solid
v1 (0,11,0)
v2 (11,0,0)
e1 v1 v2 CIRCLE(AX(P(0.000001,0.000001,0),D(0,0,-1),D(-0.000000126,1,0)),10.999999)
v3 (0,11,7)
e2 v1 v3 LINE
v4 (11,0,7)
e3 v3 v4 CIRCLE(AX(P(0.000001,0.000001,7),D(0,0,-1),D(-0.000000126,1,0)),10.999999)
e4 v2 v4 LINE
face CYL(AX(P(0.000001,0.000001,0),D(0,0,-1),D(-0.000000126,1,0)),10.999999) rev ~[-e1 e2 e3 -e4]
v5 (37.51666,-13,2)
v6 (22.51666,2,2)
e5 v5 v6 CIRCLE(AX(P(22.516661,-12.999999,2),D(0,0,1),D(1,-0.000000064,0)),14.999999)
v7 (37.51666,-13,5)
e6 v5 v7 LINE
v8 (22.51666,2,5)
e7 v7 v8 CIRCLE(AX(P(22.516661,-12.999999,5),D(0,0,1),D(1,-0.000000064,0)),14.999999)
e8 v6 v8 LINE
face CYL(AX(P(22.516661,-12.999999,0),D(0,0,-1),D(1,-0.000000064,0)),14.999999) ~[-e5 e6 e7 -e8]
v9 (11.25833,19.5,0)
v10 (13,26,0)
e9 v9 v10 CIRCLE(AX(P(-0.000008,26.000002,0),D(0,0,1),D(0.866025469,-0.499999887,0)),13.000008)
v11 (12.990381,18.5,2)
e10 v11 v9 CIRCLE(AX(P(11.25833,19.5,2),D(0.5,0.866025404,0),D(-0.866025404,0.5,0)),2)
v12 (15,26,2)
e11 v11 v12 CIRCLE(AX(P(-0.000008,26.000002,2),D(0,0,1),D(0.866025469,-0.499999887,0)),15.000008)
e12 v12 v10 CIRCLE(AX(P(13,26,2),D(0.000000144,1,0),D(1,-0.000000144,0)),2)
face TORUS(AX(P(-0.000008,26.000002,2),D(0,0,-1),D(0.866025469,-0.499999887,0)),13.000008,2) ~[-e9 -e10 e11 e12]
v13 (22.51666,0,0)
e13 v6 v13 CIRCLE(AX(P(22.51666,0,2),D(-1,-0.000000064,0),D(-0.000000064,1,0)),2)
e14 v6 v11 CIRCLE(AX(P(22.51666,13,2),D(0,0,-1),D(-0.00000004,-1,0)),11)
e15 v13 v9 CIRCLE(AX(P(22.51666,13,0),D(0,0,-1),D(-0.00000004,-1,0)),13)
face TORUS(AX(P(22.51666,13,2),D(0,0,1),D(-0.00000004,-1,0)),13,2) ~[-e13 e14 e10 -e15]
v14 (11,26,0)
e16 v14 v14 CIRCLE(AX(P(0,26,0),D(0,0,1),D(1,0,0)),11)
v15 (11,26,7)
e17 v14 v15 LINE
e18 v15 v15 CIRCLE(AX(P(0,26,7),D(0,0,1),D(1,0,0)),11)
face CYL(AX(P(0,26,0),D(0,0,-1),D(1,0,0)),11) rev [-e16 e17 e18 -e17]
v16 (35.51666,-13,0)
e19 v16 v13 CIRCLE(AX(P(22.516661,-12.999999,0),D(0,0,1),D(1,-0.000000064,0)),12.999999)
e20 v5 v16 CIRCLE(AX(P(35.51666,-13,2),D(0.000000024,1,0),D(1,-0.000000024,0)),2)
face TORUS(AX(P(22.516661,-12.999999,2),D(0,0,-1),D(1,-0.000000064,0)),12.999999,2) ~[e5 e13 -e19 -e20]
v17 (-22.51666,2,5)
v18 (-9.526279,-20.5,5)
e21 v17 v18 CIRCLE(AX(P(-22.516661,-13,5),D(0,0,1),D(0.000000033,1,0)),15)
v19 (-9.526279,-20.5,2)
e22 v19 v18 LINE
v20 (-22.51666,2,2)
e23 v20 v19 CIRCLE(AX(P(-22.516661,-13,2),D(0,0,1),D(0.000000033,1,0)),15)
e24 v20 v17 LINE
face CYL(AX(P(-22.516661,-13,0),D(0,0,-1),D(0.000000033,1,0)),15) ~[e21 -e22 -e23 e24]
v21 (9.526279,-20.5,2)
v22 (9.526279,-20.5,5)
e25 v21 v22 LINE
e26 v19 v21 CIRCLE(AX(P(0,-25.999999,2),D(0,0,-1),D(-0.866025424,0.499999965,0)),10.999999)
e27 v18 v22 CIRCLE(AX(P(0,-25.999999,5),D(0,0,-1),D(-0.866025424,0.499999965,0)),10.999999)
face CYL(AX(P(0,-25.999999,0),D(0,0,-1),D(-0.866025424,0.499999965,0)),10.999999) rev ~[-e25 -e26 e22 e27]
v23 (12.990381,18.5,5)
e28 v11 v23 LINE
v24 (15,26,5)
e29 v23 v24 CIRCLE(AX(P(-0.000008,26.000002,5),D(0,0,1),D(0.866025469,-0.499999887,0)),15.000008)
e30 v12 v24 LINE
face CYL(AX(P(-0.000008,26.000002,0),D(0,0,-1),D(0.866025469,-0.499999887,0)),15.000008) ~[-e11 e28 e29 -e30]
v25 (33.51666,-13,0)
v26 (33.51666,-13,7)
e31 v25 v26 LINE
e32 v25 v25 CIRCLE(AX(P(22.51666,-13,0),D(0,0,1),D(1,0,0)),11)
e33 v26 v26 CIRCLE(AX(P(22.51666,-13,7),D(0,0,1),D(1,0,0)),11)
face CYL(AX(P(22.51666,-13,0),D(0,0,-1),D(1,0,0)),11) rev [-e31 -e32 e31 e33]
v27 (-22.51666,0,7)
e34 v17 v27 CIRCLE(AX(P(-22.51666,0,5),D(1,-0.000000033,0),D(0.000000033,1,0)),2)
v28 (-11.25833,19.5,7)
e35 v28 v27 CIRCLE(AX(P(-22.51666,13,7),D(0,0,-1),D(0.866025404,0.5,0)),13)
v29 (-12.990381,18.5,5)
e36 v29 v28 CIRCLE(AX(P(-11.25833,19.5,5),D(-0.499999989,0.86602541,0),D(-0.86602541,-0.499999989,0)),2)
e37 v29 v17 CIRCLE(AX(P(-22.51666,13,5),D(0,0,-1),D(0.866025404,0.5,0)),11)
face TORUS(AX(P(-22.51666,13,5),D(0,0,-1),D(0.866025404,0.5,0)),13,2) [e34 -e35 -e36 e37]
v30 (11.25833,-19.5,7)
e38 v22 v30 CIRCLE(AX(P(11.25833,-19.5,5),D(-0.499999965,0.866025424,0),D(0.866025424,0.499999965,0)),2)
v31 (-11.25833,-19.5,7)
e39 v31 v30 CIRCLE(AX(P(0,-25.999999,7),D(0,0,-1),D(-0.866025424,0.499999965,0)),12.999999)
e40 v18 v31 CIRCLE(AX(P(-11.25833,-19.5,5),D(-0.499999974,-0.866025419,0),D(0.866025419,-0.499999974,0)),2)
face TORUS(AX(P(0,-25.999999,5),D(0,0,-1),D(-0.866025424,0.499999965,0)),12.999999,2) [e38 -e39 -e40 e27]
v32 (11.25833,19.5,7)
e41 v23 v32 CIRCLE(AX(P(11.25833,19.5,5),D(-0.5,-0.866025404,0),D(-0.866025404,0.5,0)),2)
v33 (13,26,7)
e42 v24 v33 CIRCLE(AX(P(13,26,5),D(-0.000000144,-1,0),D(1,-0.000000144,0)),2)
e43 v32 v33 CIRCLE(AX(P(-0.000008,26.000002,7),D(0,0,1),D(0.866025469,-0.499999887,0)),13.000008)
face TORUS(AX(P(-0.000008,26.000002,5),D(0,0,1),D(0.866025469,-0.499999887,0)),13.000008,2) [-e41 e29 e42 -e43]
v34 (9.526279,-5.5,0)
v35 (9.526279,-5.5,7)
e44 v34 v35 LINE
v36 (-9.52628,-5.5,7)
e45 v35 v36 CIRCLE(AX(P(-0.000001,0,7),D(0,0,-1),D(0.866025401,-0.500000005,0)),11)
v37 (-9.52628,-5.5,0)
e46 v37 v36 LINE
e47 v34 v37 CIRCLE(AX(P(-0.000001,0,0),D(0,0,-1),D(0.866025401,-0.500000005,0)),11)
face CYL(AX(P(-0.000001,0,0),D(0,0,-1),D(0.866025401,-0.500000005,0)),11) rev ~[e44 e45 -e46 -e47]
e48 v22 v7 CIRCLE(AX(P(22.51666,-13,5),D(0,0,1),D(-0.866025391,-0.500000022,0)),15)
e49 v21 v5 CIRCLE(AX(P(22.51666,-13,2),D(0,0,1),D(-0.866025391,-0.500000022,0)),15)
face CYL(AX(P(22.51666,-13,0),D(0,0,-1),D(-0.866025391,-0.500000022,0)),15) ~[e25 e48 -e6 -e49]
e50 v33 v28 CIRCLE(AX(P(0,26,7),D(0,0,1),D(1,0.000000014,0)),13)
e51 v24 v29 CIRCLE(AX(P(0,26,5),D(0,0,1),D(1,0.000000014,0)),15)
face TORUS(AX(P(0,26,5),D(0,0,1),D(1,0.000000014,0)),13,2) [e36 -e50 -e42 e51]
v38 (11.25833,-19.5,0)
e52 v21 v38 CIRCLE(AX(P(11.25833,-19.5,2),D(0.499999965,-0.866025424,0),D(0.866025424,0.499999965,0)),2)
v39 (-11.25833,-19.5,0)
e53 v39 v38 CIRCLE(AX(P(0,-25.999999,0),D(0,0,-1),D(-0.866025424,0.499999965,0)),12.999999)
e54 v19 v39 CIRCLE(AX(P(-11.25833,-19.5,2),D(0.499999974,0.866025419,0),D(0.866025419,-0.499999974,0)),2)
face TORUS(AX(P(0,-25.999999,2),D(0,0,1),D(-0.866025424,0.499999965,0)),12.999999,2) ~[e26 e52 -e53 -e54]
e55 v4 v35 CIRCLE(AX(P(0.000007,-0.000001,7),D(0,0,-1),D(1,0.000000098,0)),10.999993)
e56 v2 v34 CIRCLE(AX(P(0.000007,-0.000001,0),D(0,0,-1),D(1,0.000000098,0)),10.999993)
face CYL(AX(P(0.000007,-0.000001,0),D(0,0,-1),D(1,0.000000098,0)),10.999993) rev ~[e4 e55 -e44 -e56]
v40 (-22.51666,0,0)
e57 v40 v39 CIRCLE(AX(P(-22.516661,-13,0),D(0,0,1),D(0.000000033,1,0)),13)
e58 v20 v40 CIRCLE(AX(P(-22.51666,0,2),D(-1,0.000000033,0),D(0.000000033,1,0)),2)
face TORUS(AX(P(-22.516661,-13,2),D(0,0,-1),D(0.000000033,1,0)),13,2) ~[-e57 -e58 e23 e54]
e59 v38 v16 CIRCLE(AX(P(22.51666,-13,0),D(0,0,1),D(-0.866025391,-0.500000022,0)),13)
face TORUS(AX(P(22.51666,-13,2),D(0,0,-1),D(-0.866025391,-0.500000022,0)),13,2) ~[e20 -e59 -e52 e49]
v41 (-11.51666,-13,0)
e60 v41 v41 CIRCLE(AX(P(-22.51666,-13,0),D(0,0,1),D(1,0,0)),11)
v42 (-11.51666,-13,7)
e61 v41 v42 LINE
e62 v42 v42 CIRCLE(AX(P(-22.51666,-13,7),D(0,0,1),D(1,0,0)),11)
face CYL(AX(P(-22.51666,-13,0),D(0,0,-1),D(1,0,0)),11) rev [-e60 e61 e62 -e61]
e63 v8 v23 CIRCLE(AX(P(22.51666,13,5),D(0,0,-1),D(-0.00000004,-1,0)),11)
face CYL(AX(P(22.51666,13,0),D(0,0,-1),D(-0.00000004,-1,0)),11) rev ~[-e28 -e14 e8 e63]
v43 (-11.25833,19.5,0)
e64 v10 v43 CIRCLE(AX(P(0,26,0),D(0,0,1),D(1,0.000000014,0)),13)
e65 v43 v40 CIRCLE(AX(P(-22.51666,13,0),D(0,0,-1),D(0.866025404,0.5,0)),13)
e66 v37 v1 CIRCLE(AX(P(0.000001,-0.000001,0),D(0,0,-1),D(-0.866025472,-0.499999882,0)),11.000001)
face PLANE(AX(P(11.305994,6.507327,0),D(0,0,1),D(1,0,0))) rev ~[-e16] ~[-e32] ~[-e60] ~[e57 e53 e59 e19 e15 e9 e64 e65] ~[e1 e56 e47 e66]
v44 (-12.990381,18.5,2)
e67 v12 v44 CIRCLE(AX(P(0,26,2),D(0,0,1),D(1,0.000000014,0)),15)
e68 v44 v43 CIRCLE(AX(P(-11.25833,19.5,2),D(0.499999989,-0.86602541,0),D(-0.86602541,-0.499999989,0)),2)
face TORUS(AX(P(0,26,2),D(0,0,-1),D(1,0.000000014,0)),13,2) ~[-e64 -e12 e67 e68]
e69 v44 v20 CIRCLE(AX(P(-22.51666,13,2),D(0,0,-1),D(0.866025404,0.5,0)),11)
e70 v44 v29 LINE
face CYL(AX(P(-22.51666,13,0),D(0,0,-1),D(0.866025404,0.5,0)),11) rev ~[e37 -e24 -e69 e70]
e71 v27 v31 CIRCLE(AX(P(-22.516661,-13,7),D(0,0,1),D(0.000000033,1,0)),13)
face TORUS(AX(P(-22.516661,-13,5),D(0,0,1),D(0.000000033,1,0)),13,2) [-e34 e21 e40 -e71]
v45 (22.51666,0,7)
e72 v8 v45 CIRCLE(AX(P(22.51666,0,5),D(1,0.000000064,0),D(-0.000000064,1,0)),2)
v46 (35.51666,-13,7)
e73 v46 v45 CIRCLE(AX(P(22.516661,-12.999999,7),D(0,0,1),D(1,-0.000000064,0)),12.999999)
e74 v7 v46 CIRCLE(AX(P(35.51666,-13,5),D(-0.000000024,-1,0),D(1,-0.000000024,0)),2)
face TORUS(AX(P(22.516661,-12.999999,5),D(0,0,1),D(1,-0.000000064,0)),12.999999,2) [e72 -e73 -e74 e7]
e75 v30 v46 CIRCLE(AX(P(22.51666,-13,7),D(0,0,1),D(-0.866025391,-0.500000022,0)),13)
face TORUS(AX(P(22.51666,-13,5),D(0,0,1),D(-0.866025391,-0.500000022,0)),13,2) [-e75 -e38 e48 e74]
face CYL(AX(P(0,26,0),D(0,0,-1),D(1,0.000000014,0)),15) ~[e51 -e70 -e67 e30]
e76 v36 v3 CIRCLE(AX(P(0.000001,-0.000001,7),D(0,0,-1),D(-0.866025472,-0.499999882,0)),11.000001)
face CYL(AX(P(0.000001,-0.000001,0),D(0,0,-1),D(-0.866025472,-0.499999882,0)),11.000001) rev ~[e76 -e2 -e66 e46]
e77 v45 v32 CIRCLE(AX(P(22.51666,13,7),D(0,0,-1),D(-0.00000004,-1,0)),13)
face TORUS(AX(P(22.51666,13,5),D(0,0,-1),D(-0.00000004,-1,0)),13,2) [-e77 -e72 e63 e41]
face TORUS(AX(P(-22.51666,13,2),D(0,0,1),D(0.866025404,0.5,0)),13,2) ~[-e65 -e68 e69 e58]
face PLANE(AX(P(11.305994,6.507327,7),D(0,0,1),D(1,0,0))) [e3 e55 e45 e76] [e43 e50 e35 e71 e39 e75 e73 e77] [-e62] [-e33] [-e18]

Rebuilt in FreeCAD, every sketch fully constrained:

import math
import FreeCAD as App
import Part
import Sketcher
Q = App.Units.Quantity


def edges_at(feature, points):
    """Names of the edges that pass closest to the given points."""
    edges = feature.Shape.Edges
    near = lambda p: min(range(len(edges)), key=lambda i: edges[i].distToShape(Part.Vertex(*p))[0])
    return sorted({f"Edge{near(p) + 1}" for p in points})

doc = App.newDocument("Part")
params = doc.addObject("Spreadsheet::Sheet", "Params")
for row, (alias, value) in enumerate([
    ("sketch1_diameter", "22 mm"),
    ("sketch1_radius", "15 mm"),
    ("pad1_length", "7 mm"),
    ("fillet_radius", "2 mm"),
], start=1):
    params.set(f"A{row}", alias)
    params.set(f"B{row}", "=" + value)
    params.setAlias(f"B{row}", alias)

body = doc.addObject("PartDesign::Body", "Body")

sketch1 = body.newObject("Sketcher::SketchObject", "Sketch")
sketch1.AttachmentSupport = (doc.getObject("XY_Plane"), [""])
sketch1.MapMode = "FlatFace"
sketch1.addGeometry([
    Part.ArcOfCircle(Part.Circle(App.Vector(-23, 13, 0), App.Vector(0, 0, 1), 11), math.radians(-90), math.radians(30)),
    Part.ArcOfCircle(Part.Circle(App.Vector(-23, -13, 0), App.Vector(0, 0, 1), 15), math.radians(90), math.radians(330)),
    Part.ArcOfCircle(Part.Circle(App.Vector(0, -26, 0), App.Vector(0, 0, 1), 11), math.radians(30), math.radians(150)),
    Part.ArcOfCircle(Part.Circle(App.Vector(23, -13, 0), App.Vector(0, 0, 1), 15), math.radians(-150), math.radians(0)),
    Part.ArcOfCircle(Part.Circle(App.Vector(23, -13, 0), App.Vector(0, 0, 1), 15), math.radians(0), math.radians(90)),
    Part.ArcOfCircle(Part.Circle(App.Vector(23, 13, 0), App.Vector(0, 0, 1), 11), math.radians(150), math.radians(270)),
    Part.ArcOfCircle(Part.Circle(App.Vector(0, 26, 0), App.Vector(0, 0, 1), 15), math.radians(-30), math.radians(0)),
    Part.ArcOfCircle(Part.Circle(App.Vector(0, 26, 0), App.Vector(0, 0, 1), 15), math.radians(0), math.radians(210)),
    Part.Circle(App.Vector(-23, -13, 0), App.Vector(0, 0, 1), 11),
    Part.Circle(App.Vector(23, -13, 0), App.Vector(0, 0, 1), 11),
    Part.ArcOfCircle(Part.Circle(App.Vector(0, 0, 0), App.Vector(0, 0, 1), 11), math.radians(-150), math.radians(-30)),
    Part.ArcOfCircle(Part.Circle(App.Vector(0, 0, 0), App.Vector(0, 0, 1), 11), math.radians(90), math.radians(210)),
    Part.ArcOfCircle(Part.Circle(App.Vector(0, 0, 0), App.Vector(0, 0, 1), 11), math.radians(0), math.radians(90)),
    Part.ArcOfCircle(Part.Circle(App.Vector(0, 0, 0), App.Vector(0, 0, 1), 11), math.radians(-30), math.radians(0)),
    Part.Circle(App.Vector(0, 26, 0), App.Vector(0, 0, 1), 11),
], False)
sketch1.addConstraint([
    Sketcher.Constraint("Tangent", 0, 1, 1, 1),
    Sketcher.Constraint("Tangent", 1, 2, 2, 2),
    Sketcher.Constraint("Tangent", 2, 1, 3, 1),
    Sketcher.Constraint("Tangent", 3, 2, 4, 1),
    Sketcher.Constraint("Tangent", 4, 2, 5, 2),
    Sketcher.Constraint("Tangent", 5, 1, 6, 1),
    Sketcher.Constraint("Tangent", 6, 2, 7, 1),
    Sketcher.Constraint("Tangent", 7, 2, 0, 2),
    Sketcher.Constraint("Tangent", 10, 1, 11, 2),
    Sketcher.Constraint("Tangent", 11, 1, 12, 2),
    Sketcher.Constraint("Tangent", 12, 1, 13, 2),
    Sketcher.Constraint("Tangent", 13, 1, 10, 2),
    Sketcher.Constraint("Coincident", 10, 3, -1, 1),
    Sketcher.Constraint("Coincident", 8, 3, 1, 3),
    Sketcher.Constraint("Coincident", 9, 3, 3, 3),
    Sketcher.Constraint("Coincident", 14, 3, 6, 3),
    Sketcher.Constraint("Equal", 0, 2),
    Sketcher.Constraint("Equal", 1, 3),
    Sketcher.Constraint("Equal", 3, 4),
    Sketcher.Constraint("Equal", 2, 5),
    Sketcher.Constraint("Equal", 4, 7),
    Sketcher.Constraint("Equal", 5, 8),
    Sketcher.Constraint("Equal", 8, 9),
    Sketcher.Constraint("Equal", 9, 10),
    Sketcher.Constraint("Equal", 10, 11),
    Sketcher.Constraint("Equal", 12, 14),
    Sketcher.Constraint("Symmetric", 0, 3, 3, 3, -1, 1),
    Sketcher.Constraint("Symmetric", 2, 3, 6, 3, -1, 1),
    Sketcher.Constraint("Symmetric", 1, 3, 3, 3, -2),
    Sketcher.Constraint("PointOnObject", 11, 1, -2),
    Sketcher.Constraint("PointOnObject", 12, 1, -1),
    Sketcher.Constraint("Horizontal", 9, 3, 3, 2),
    Sketcher.Constraint("Horizontal", 14, 3, 6, 2),
    Sketcher.Constraint("Horizontal", 10, 1, 13, 1),
    Sketcher.Constraint("Vertical", 1, 2, 10, 1),
    Sketcher.Constraint("Diameter", 8, Q("22 mm")),
    Sketcher.Constraint("Radius", 1, Q("15 mm")),
    Sketcher.Constraint("DistanceY", 2, 3, -1, 1, Q("25.999999 mm")),
])
sketch1.setExpression("Constraints[35]", "Params.sketch1_diameter")
sketch1.setExpression("Constraints[36]", "Params.sketch1_radius")
pad1 = body.newObject("PartDesign::Pad", "Pad")
pad1.Profile = sketch1
pad1.setExpression("Length", "Params.pad1_length")
doc.recompute()

fillet = body.newObject("PartDesign::Fillet", "Fillet")
fillet.Base = (pad1, edges_at(pad1, [
    (-9.526, -20.5, 3.5),
    (-35.507, -20.5, 7),
    (-22.517, 2, 3.5),
    (-35.507, -20.5, 0),
]))
fillet.setExpression("Radius", "Params.fillet_radius")

doc.recompute()
